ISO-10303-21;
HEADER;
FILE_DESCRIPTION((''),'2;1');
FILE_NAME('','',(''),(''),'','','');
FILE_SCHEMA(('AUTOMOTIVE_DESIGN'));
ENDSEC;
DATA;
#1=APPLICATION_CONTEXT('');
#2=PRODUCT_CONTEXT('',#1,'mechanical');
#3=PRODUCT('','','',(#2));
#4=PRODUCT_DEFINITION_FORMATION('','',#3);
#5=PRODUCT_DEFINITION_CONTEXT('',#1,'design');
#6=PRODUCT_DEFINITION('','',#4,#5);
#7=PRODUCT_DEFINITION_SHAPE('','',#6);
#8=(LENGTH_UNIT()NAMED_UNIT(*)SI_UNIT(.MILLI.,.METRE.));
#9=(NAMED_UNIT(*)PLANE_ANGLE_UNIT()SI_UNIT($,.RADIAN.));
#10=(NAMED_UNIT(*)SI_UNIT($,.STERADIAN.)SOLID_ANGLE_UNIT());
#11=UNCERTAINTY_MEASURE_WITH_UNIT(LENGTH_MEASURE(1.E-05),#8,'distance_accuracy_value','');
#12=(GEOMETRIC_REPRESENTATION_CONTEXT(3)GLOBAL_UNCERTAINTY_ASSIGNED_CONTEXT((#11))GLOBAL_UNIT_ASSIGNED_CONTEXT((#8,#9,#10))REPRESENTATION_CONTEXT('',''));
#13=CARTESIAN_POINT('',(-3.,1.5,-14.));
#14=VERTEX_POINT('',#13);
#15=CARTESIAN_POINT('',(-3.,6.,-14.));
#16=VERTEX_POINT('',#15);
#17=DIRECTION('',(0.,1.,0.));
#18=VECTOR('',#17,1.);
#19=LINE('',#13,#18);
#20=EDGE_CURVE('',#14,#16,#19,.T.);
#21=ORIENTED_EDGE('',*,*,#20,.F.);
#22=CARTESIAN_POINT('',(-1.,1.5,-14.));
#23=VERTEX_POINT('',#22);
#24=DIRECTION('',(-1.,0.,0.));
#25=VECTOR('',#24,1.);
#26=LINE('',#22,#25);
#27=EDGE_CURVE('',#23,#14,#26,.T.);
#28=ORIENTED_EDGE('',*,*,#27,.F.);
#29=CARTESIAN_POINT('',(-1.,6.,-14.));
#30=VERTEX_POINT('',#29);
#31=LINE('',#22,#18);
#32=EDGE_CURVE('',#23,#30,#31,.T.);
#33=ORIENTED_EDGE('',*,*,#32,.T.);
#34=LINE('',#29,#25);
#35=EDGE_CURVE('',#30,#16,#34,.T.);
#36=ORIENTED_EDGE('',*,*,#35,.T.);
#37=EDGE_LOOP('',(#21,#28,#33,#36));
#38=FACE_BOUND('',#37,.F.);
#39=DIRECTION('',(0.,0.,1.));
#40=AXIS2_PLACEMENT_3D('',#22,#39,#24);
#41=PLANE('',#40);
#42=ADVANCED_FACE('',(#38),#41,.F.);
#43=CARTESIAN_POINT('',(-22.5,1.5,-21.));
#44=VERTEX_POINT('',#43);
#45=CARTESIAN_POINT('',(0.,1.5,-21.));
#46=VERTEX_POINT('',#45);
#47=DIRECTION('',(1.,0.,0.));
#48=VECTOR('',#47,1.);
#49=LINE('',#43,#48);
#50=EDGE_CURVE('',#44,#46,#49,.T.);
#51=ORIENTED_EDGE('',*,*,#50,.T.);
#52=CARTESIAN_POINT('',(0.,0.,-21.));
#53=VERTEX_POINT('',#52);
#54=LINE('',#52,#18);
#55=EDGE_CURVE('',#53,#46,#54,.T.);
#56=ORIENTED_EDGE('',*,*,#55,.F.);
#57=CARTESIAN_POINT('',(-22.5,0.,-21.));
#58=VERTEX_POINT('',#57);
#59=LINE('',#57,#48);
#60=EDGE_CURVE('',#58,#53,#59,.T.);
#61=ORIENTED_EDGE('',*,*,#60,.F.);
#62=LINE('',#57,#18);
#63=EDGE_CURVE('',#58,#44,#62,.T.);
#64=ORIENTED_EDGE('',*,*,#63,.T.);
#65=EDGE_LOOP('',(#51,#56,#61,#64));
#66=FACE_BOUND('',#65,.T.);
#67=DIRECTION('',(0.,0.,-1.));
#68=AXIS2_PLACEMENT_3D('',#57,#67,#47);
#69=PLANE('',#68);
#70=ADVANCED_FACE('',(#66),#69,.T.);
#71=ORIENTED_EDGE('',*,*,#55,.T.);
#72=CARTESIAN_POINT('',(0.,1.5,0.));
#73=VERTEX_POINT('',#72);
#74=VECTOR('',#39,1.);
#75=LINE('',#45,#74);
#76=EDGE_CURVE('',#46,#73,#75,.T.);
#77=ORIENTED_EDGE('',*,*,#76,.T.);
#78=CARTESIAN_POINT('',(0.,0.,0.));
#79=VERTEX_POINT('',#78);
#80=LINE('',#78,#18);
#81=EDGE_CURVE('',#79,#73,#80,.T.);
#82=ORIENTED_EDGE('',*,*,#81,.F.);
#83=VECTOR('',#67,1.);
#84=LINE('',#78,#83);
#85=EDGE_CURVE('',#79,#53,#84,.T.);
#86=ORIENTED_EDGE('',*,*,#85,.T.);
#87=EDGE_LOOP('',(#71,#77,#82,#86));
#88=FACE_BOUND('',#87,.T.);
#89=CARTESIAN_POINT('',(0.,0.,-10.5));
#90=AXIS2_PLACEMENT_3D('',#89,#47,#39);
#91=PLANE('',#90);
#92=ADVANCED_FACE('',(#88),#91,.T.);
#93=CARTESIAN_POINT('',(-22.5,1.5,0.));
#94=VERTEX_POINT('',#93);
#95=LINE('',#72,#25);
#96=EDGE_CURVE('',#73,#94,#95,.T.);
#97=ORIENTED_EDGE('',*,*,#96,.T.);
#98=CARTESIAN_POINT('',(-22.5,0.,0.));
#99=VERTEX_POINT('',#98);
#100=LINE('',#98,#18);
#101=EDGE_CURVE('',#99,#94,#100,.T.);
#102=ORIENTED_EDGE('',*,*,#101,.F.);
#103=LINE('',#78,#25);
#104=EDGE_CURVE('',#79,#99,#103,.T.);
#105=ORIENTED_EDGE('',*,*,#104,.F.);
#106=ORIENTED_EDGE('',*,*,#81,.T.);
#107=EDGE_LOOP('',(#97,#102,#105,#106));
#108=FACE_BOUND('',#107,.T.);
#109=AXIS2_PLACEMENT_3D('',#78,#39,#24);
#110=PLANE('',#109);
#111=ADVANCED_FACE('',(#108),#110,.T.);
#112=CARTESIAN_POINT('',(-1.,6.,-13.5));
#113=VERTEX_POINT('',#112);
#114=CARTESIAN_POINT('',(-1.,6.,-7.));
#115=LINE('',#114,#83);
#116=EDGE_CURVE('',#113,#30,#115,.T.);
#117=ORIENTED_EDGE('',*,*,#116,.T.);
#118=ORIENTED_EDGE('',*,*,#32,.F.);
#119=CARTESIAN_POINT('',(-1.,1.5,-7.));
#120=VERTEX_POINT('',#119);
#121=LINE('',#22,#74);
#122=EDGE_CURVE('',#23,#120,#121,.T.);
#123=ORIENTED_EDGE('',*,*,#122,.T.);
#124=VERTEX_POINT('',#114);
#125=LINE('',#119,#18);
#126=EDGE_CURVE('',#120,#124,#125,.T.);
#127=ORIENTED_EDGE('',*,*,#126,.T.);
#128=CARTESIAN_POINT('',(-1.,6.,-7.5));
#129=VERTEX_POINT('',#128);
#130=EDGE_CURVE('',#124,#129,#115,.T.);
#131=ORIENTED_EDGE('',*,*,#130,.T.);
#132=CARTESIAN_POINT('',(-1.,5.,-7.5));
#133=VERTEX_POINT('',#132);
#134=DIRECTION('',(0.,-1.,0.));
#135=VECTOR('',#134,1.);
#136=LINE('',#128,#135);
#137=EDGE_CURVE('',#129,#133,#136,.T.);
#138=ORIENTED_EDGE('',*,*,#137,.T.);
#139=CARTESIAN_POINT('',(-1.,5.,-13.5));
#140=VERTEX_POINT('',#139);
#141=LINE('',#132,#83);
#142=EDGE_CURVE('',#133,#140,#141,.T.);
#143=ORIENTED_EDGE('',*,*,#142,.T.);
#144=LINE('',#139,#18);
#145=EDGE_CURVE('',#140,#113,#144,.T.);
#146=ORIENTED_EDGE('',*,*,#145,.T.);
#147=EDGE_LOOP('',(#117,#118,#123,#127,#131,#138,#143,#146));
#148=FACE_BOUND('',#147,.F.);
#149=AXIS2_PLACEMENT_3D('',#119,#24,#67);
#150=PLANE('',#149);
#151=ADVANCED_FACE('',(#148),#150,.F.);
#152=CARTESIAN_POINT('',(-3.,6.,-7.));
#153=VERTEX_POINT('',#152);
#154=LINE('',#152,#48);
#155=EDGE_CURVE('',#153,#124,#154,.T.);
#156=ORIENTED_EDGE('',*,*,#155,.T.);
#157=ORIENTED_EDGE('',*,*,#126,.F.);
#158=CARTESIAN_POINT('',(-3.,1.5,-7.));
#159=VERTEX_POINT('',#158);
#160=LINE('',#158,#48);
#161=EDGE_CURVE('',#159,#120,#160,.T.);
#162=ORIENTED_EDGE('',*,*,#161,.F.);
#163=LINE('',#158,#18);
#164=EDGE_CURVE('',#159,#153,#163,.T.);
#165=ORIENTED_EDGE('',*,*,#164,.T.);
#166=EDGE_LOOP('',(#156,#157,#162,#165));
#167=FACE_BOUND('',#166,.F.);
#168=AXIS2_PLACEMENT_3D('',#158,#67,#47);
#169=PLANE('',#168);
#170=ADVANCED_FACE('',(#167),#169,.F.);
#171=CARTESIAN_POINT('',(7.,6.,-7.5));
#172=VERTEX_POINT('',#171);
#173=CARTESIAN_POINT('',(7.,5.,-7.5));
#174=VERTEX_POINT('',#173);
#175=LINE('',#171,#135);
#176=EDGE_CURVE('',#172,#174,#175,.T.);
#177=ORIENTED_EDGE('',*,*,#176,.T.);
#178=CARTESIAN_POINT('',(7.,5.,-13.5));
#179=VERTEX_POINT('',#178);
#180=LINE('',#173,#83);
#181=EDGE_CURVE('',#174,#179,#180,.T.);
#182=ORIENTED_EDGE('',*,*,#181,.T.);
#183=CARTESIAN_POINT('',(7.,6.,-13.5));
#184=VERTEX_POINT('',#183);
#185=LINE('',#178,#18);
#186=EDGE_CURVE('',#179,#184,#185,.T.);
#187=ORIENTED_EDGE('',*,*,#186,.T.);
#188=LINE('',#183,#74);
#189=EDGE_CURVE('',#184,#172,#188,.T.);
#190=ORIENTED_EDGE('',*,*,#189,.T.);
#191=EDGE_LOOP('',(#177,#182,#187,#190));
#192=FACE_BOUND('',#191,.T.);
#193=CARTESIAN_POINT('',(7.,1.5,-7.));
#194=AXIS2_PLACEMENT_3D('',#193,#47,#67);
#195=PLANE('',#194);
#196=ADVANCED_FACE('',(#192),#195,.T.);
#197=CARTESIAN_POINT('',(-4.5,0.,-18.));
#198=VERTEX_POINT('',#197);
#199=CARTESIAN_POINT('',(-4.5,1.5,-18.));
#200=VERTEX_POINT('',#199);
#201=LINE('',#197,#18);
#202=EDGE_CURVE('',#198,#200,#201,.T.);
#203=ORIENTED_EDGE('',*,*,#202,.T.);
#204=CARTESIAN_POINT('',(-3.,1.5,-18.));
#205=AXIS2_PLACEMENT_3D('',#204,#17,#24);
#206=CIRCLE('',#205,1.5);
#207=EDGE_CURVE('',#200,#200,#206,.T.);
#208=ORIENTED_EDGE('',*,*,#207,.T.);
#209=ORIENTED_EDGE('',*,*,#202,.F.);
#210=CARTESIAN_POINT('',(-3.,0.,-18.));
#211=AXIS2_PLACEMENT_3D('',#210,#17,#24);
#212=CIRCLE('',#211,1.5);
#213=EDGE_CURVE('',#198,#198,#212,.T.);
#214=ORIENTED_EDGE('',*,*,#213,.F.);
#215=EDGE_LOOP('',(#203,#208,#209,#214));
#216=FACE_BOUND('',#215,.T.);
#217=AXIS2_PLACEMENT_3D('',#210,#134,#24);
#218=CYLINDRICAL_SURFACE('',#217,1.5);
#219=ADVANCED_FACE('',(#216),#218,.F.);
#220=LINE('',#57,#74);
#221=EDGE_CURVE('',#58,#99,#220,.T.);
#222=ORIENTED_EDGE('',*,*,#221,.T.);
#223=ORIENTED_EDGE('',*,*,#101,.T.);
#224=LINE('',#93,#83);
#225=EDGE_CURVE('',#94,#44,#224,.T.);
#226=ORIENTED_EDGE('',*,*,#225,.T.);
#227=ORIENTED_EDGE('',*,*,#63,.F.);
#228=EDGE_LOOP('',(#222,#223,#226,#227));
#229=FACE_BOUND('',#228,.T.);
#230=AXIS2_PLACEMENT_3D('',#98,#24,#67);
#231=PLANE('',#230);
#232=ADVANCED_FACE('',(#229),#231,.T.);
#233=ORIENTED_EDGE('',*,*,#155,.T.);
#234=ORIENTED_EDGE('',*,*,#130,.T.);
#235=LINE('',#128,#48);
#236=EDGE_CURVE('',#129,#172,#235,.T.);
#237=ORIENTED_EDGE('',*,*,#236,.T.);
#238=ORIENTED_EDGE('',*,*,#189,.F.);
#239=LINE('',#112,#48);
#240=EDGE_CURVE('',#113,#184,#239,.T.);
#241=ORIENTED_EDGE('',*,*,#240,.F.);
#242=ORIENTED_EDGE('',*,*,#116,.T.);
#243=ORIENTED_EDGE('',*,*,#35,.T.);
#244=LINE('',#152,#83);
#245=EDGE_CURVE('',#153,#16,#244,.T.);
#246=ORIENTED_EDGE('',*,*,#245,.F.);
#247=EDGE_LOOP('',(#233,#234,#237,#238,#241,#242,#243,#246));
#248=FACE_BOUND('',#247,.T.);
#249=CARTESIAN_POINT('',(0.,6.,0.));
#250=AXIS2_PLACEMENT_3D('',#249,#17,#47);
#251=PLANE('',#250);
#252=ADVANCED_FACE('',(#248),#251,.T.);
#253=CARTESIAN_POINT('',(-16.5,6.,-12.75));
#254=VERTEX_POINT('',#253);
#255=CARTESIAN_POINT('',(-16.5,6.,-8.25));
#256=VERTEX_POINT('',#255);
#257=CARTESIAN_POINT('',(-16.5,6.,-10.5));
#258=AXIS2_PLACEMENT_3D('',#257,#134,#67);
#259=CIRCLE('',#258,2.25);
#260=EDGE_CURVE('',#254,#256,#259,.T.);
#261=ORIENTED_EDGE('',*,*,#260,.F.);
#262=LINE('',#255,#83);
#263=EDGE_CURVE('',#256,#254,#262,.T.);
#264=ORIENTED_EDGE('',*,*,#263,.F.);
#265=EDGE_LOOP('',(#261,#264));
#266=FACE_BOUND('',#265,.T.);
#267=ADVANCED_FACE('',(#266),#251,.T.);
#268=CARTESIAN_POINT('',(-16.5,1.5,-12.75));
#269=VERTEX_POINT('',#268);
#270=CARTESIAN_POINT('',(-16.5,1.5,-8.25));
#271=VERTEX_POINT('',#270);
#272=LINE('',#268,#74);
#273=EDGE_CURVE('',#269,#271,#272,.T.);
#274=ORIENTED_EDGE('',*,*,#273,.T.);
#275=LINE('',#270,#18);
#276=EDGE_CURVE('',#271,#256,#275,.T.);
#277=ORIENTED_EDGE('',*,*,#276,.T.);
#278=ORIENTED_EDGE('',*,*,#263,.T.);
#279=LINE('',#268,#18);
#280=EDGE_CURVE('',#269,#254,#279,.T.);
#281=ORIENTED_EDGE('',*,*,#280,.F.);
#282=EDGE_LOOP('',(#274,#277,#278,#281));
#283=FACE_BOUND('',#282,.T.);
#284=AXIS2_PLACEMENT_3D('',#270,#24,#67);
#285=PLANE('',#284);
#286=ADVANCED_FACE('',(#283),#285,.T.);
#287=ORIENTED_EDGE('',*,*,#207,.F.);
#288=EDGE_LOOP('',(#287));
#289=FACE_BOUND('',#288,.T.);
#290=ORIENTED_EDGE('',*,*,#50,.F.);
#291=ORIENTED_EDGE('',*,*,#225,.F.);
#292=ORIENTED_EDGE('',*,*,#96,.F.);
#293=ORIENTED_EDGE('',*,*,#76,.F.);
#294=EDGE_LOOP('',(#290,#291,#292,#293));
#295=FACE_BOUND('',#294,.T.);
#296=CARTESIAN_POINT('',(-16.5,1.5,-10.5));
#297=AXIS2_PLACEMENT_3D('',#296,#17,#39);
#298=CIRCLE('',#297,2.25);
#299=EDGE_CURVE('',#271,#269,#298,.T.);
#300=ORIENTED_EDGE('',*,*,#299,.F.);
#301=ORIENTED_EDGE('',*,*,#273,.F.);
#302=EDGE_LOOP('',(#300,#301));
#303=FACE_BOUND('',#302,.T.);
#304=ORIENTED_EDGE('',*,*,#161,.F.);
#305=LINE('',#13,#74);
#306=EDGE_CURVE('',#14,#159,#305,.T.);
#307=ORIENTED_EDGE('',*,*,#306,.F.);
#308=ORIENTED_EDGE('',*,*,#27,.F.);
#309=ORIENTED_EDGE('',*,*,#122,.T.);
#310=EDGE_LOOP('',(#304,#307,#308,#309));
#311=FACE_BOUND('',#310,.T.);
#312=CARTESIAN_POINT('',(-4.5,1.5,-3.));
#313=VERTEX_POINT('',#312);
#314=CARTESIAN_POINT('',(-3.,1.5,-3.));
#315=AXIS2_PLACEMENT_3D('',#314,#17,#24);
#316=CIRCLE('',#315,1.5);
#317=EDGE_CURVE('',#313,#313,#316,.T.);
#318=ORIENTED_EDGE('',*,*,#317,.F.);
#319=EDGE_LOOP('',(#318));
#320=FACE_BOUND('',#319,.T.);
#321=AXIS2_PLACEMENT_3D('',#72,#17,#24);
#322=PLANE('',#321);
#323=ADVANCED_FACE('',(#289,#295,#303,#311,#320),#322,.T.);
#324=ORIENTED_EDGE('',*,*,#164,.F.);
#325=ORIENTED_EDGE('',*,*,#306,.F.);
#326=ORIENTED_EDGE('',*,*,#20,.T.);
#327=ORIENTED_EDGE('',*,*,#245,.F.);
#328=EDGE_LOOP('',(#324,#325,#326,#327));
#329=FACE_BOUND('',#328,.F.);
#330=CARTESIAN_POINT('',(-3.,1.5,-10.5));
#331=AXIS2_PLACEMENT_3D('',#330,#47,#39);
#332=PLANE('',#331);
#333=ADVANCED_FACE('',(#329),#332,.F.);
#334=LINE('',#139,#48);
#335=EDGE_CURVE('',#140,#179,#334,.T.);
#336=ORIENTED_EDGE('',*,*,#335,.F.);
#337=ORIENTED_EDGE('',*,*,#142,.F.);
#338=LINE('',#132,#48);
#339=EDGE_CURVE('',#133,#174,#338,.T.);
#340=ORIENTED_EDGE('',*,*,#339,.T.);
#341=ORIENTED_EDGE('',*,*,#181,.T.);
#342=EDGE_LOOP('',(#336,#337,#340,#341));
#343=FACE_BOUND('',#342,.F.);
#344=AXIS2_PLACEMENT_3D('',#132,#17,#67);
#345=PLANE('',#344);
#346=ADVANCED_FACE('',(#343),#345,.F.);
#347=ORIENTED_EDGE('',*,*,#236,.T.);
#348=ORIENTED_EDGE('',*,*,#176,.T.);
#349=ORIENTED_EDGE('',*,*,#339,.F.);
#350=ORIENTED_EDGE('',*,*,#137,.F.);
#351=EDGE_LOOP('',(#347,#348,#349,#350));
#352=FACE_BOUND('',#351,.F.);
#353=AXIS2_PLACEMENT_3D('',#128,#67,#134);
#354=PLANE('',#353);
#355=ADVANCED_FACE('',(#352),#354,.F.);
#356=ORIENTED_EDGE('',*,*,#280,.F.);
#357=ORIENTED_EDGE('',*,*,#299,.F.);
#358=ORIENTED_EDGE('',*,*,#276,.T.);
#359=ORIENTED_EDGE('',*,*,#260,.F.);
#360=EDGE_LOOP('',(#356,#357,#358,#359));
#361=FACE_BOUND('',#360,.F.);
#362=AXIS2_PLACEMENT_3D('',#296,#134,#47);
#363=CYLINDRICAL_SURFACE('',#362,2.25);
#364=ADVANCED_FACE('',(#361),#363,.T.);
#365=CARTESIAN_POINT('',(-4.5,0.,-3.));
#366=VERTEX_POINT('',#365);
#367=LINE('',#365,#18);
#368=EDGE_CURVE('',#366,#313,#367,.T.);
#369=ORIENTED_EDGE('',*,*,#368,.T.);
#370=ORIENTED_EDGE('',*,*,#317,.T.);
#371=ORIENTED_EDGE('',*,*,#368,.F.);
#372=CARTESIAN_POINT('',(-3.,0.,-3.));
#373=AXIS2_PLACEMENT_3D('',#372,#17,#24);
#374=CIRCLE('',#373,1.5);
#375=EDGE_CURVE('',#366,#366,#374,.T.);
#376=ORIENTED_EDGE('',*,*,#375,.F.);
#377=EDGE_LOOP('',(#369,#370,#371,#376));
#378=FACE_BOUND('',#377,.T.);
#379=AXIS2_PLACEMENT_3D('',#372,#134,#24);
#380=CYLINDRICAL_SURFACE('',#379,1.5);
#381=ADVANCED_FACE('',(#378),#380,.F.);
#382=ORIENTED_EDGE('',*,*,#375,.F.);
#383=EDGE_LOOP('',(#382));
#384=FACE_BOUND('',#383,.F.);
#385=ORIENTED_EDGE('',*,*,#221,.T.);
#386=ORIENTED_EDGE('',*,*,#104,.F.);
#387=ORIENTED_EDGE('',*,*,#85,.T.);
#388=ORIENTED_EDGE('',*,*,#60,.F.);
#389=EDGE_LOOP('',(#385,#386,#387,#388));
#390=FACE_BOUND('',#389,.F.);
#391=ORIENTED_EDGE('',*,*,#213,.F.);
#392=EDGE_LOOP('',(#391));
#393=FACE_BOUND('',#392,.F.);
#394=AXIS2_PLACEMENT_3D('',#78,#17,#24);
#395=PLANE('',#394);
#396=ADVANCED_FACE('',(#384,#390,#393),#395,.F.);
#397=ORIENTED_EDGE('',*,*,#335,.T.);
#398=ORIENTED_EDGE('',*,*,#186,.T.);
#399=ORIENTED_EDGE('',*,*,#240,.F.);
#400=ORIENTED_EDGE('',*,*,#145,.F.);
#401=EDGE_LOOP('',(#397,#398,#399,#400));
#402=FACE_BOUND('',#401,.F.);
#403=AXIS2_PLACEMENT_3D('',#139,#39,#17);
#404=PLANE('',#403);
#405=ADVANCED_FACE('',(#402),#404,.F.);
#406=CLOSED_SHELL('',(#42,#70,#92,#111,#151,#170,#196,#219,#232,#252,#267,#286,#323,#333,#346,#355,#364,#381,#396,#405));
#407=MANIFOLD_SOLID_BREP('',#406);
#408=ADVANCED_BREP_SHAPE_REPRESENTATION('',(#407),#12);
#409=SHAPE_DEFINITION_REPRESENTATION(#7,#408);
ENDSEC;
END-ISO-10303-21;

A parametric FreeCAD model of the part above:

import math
import FreeCAD as App
import Part
import Sketcher

V = App.Vector
Q = App.Units.Quantity


def add_polygon(sketch, points):
    """Adds a closed chain of lines whose ends are joined by coincident constraints."""
    first, n = sketch.GeometryCount, len(points)
    for a, b in zip(points, points[1:] + points[:1]):
        sketch.addGeometry(Part.LineSegment(App.Vector(*a, 0), App.Vector(*b, 0)), False)
    for i in range(n):
        sketch.addConstraint(Sketcher.Constraint("Coincident", first + i, 2, first + (i + 1) % n, 1))

doc = App.newDocument("Part")
body = doc.addObject("PartDesign::Body", "Body")

# Sketch on XZ plane
sketch1 = body.newObject("Sketcher::SketchObject", "Sketch")
sketch1.AttachmentSupport = (doc.getObject("XZ_Plane"), [""])
sketch1.MapMode = "FlatFace"
add_polygon(sketch1, [(-22.5, 0), (0, 0), (0, -21), (-22.5, -21)])  # lines 0-3
sketch1.addGeometry(Part.Circle(V(-3, -3, 0), V(0, 0, 1), 1.5), False)  # 4
sketch1.addGeometry(Part.Circle(V(-3, -18, 0), V(0, 0, 1), 1.5), False)  # 5
sketch1.addConstraint(Sketcher.Constraint("Horizontal", 0))
sketch1.addConstraint(Sketcher.Constraint("Vertical", 1))
sketch1.addConstraint(Sketcher.Constraint("Horizontal", 2))
sketch1.addConstraint(Sketcher.Constraint("Vertical", 3))
sketch1.addConstraint(Sketcher.Constraint("Coincident", 0, 2, -1, 1))
sketch1.addConstraint(Sketcher.Constraint("Equal", 4, 5))
sketch1.addConstraint(Sketcher.Constraint("Vertical", 4, 3, 5, 3))
sketch1.addConstraint(Sketcher.Constraint("Diameter", 4, Q("3 mm")))
sketch1.addConstraint(Sketcher.Constraint("DistanceY", 1, 2, 1, 1, Q("21 mm")))
sketch1.addConstraint(Sketcher.Constraint("DistanceX", 0, 1, 0, 2, Q("22.5 mm")))
sketch1.addConstraint(Sketcher.Constraint("DistanceX", 4, 3, -1, 1, Q("3 mm")))
sketch1.addConstraint(Sketcher.Constraint("DistanceY", 4, 3, -1, 1, Q("3 mm")))
sketch1.addConstraint(Sketcher.Constraint("DistanceY", 5, 3, 4, 3, Q("15 mm")))
pad1 = body.newObject("PartDesign::Pad", "Pad")
pad1.Profile = sketch1
pad1.Length = 1.5
pad1.Reversed = True

# Sketch on XZ plane
sketch2 = body.newObject("Sketcher::SketchObject", "Sketch001")
sketch2.AttachmentSupport = (doc.getObject("XZ_Plane"), [""])
sketch2.MapMode = "FlatFace"
sketch2.AttachmentOffset = App.Placement(V(0, 0, -1.5), App.Rotation())
add_polygon(sketch2, [(-3, -7), (-1, -7), (-1, -14), (-3, -14)])  # lines 0-3
sketch2.addGeometry(Part.ArcOfCircle(Part.Circle(V(-16.5, -10.5, 0), V(0, 0, 1), 2.2), math.radians(-90), math.radians(90)), False)  # 4
sketch2.addGeometry(Part.LineSegment(V(-16.5, -12.8, 0), V(-16.5, -8.2, 0)), False)  # 5
sketch2.addConstraint(Sketcher.Constraint("Coincident", 4, 1, 5, 1))
sketch2.addConstraint(Sketcher.Constraint("Coincident", 5, 2, 4, 2))
sketch2.addConstraint(Sketcher.Constraint("Horizontal", 0))
sketch2.addConstraint(Sketcher.Constraint("Vertical", 1))
sketch2.addConstraint(Sketcher.Constraint("Horizontal", 2))
sketch2.addConstraint(Sketcher.Constraint("Vertical", 3))
sketch2.addConstraint(Sketcher.Constraint("Vertical", 5))
sketch2.addConstraint(Sketcher.Constraint("DistanceX", 0, 1, 0, 2, Q("2 mm")))
sketch2.addConstraint(Sketcher.Constraint("DistanceY", 1, 2, 1, 1, Q("7 mm")))
sketch2.addConstraint(Sketcher.Constraint("Radius", 4, Q("2.25 mm")))
sketch2.addConstraint(Sketcher.Constraint("DistanceX", 0, 2, -1, 1, Q("1 mm")))
sketch2.addConstraint(Sketcher.Constraint("DistanceY", 0, 2, -1, 1, Q("7 mm")))
sketch2.addConstraint(Sketcher.Constraint("DistanceX", 4, 3, -1, 1, Q("16.5 mm")))
sketch2.addConstraint(Sketcher.Constraint("DistanceY", 4, 3, -1, 1, Q("10.5 mm")))
sketch2.addConstraint(Sketcher.Constraint("DistanceX", 4, 1, -1, 1, Q("16.5 mm")))
pad2 = body.newObject("PartDesign::Pad", "Pad001")
pad2.Profile = sketch2
pad2.Length = 4.5
pad2.Reversed = True

# Sketch on YZ plane
sketch3 = body.newObject("Sketcher::SketchObject", "Sketch002")
sketch3.AttachmentSupport = (doc.getObject("YZ_Plane"), [""])
sketch3.MapMode = "FlatFace"
sketch3.AttachmentOffset = App.Placement(V(0, 0, -1), App.Rotation())
add_polygon(sketch3, [(6, -7.5), (5, -7.5), (5, -13.5), (6, -13.5)])  # lines 0-3
sketch3.addConstraint(Sketcher.Constraint("Horizontal", 0))
sketch3.addConstraint(Sketcher.Constraint("Vertical", 1))
sketch3.addConstraint(Sketcher.Constraint("Horizontal", 2))
sketch3.addConstraint(Sketcher.Constraint("Vertical", 3))
sketch3.addConstraint(Sketcher.Constraint("DistanceX", 0, 2, 0, 1, Q("1 mm")))
sketch3.addConstraint(Sketcher.Constraint("DistanceY", 1, 2, 1, 1, Q("6 mm")))
sketch3.addConstraint(Sketcher.Constraint("DistanceX", -1, 1, 2, 2, Q("6 mm")))
sketch3.addConstraint(Sketcher.Constraint("DistanceY", 0, 2, -1, 1, Q("7.5 mm")))
pad3 = body.newObject("PartDesign::Pad", "Pad002")
pad3.Profile = sketch3
pad3.Length = 8

doc.recompute()
